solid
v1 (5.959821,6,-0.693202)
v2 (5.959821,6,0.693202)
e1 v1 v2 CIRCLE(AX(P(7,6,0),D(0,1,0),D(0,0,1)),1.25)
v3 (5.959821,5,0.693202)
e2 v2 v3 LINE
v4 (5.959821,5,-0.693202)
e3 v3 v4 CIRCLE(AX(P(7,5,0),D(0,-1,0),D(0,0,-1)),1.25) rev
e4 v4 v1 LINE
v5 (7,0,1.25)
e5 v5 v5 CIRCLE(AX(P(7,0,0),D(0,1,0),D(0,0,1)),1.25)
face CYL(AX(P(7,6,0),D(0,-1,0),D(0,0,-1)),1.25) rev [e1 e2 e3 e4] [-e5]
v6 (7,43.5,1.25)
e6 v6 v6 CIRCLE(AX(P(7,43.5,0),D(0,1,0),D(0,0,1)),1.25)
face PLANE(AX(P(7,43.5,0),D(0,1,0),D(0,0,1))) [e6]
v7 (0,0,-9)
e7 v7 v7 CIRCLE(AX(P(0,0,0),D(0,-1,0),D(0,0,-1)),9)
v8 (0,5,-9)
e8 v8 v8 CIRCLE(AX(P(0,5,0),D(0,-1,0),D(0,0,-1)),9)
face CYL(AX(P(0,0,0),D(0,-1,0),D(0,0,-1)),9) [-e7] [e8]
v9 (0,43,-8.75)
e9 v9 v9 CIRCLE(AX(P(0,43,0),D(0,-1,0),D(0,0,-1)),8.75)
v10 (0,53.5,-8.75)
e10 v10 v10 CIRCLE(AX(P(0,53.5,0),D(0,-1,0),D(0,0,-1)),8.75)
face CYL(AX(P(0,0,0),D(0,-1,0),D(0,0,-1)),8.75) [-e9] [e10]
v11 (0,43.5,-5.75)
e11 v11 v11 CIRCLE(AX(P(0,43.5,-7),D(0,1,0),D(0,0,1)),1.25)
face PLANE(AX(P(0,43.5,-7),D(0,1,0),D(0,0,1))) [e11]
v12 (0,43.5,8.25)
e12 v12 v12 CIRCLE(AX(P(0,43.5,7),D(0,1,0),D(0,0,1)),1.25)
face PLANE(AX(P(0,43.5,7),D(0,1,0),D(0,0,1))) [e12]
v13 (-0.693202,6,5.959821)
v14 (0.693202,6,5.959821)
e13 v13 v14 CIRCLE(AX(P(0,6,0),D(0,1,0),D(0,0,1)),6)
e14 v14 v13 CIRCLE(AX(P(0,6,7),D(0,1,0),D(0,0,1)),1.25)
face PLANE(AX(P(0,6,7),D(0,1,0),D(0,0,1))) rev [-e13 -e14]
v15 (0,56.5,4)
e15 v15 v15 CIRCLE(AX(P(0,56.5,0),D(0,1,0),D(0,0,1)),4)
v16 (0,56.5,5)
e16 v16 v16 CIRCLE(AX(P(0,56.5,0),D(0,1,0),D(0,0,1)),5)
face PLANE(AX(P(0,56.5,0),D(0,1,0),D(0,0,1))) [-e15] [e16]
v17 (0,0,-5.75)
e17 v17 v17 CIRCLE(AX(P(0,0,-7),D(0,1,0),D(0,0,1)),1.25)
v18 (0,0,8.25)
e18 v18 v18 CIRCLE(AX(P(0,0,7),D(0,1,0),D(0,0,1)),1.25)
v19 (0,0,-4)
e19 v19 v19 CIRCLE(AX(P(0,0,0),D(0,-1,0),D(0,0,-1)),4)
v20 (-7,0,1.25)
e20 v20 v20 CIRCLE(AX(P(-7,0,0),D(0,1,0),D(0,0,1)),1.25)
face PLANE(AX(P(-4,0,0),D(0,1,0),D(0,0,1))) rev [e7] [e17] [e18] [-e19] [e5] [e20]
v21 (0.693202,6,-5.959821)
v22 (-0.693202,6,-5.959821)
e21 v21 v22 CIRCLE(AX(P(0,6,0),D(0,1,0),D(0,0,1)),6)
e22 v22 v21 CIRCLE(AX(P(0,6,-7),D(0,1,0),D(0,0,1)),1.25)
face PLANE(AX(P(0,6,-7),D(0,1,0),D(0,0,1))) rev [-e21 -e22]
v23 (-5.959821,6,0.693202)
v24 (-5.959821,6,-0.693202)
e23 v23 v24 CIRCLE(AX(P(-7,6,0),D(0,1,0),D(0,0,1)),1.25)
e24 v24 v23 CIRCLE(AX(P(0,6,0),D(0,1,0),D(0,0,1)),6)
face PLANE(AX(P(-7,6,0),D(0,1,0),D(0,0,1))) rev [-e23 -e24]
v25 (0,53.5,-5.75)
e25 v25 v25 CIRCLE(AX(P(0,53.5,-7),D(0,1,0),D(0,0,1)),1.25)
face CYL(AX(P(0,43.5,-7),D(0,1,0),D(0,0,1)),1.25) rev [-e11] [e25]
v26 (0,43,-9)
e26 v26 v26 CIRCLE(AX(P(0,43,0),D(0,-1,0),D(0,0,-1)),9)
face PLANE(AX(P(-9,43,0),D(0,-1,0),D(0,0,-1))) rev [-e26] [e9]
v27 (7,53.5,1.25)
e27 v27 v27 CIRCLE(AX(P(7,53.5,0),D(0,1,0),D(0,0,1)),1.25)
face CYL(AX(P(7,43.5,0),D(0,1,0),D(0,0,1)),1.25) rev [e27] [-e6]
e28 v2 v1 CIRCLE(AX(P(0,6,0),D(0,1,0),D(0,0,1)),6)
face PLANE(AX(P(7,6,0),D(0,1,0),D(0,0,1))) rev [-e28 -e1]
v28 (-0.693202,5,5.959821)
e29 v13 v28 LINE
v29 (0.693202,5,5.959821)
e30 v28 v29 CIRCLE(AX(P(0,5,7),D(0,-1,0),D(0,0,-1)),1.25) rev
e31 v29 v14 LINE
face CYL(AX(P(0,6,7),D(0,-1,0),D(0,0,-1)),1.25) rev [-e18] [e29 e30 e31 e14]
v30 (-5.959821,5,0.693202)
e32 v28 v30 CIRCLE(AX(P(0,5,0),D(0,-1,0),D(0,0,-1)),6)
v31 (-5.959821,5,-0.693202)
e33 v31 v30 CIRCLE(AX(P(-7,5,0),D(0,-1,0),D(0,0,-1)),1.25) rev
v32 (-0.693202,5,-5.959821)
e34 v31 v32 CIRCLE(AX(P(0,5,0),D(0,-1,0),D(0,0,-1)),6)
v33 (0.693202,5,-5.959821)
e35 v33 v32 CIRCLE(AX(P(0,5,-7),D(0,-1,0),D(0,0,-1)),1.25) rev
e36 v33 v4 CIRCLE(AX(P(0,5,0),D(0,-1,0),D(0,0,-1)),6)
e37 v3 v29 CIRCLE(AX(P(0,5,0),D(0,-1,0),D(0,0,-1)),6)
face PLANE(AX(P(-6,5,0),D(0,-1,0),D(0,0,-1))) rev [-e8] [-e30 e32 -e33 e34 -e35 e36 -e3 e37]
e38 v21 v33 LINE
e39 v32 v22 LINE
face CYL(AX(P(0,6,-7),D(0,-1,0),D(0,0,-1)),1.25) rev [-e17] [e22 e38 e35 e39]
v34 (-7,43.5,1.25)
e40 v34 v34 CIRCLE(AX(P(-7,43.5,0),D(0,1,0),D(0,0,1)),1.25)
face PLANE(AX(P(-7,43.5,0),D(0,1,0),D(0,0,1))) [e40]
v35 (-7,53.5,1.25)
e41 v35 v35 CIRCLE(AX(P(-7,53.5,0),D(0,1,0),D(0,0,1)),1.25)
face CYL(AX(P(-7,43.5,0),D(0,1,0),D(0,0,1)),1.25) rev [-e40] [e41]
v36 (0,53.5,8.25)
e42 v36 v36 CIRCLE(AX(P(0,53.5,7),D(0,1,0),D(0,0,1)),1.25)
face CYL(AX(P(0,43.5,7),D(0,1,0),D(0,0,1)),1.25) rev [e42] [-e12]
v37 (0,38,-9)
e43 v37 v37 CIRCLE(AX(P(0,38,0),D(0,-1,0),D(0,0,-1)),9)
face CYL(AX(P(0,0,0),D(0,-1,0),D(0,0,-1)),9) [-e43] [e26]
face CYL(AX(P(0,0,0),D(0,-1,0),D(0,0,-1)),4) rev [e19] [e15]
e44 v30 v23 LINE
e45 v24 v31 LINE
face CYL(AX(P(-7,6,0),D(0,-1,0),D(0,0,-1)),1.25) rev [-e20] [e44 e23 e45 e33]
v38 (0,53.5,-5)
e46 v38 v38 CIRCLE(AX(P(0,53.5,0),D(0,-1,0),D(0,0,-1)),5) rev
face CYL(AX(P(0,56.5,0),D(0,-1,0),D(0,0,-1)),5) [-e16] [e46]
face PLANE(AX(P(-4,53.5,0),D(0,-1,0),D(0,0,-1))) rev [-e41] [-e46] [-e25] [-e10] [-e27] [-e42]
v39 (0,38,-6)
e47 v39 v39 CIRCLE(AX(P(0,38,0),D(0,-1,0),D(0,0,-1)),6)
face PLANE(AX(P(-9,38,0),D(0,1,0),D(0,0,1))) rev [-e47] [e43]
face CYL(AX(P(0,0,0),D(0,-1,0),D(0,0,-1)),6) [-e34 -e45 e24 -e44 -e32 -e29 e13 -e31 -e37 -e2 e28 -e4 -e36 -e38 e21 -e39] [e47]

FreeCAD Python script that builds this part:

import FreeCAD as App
import Part
import Sketcher

doc = App.newDocument("Part")
body = doc.addObject("PartDesign::Body", "Body")

# Sketch on XY plane
sketch1 = body.newObject("Sketcher::SketchObject", "Sketch")
sketch1.AttachmentSupport = (doc.getObject("XY_Plane"), [""])
sketch1.MapMode = "FlatFace"
sketch1.addGeometry(Part.LineSegment(App.Vector(-9, 38, 0), App.Vector(-6, 38, 0)), False)
sketch1.addGeometry(Part.LineSegment(App.Vector(-6, 38, 0), App.Vector(-6, 5, 0)), False)
sketch1.addGeometry(Part.LineSegment(App.Vector(-6, 5, 0), App.Vector(-9, 5, 0)), False)
sketch1.addGeometry(Part.LineSegment(App.Vector(-9, 5, 0), App.Vector(-9, 0, 0)), False)
sketch1.addGeometry(Part.LineSegment(App.Vector(-9, 0, 0), App.Vector(-4, 0, 0)), False)
sketch1.addGeometry(Part.LineSegment(App.Vector(-4, 0, 0), App.Vector(-4, 53.5, 0)), False)
sketch1.addGeometry(Part.LineSegment(App.Vector(-4, 53.5, 0), App.Vector(-8.75, 53.5, 0)), False)
sketch1.addGeometry(Part.LineSegment(App.Vector(-8.75, 53.5, 0), App.Vector(-8.75, 43, 0)), False)
sketch1.addGeometry(Part.LineSegment(App.Vector(-8.75, 43, 0), App.Vector(-9, 43, 0)), False)
sketch1.addGeometry(Part.LineSegment(App.Vector(-9, 43, 0), App.Vector(-9, 38, 0)), False)
sketch1.addConstraint(Sketcher.Constraint("Coincident", 0, 2, 1, 1))
sketch1.addConstraint(Sketcher.Constraint("Coincident", 1, 2, 2, 1))
sketch1.addConstraint(Sketcher.Constraint("Coincident", 2, 2, 3, 1))
sketch1.addConstraint(Sketcher.Constraint("Coincident", 3, 2, 4, 1))
sketch1.addConstraint(Sketcher.Constraint("Coincident", 4, 2, 5, 1))
sketch1.addConstraint(Sketcher.Constraint("Coincident", 5, 2, 6, 1))
sketch1.addConstraint(Sketcher.Constraint("Coincident", 6, 2, 7, 1))
sketch1.addConstraint(Sketcher.Constraint("Coincident", 7, 2, 8, 1))
sketch1.addConstraint(Sketcher.Constraint("Coincident", 8, 2, 9, 1))
sketch1.addConstraint(Sketcher.Constraint("Coincident", 9, 2, 0, 1))
sketch1.addConstraint(Sketcher.Constraint("Horizontal", 0))
sketch1.addConstraint(Sketcher.Constraint("Vertical", 1))
sketch1.addConstraint(Sketcher.Constraint("Horizontal", 2))
sketch1.addConstraint(Sketcher.Constraint("Vertical", 3))
sketch1.addConstraint(Sketcher.Constraint("Horizontal", 4))
sketch1.addConstraint(Sketcher.Constraint("Vertical", 5))
sketch1.addConstraint(Sketcher.Constraint("Horizontal", 6))
sketch1.addConstraint(Sketcher.Constraint("Vertical", 7))
sketch1.addConstraint(Sketcher.Constraint("Horizontal", 8))
sketch1.addConstraint(Sketcher.Constraint("Vertical", 9))
sketch1.addConstraint(Sketcher.Constraint("PointOnObject", 3, 2, -1))
sketch1.addConstraint(Sketcher.Constraint("Vertical", 3, 2, 8, 2))
sketch1.addConstraint(Sketcher.Constraint("Equal", 4, 3))
sketch1.addConstraint(Sketcher.Constraint("Equal", 3, 9))
sketch1.addConstraint(Sketcher.Constraint("DistanceX", 0, 1, 0, 2, 3.0))
sketch1.addConstraint(Sketcher.Constraint("DistanceX", 4, 1, 4, 2, 5.0))
sketch1.addConstraint(Sketcher.Constraint("DistanceY", 1, 2, 1, 1, 33.0))
sketch1.addConstraint(Sketcher.Constraint("DistanceY", 5, 1, 5, 2, 53.5))
sketch1.addConstraint(Sketcher.Constraint("DistanceX", 0, 2, -1, 1, 6.0))
sketch1.addConstraint(Sketcher.Constraint("DistanceX", 6, 2, 6, 1, 4.75))
revolution = body.newObject("PartDesign::Revolution", "Revolution")
revolution.Profile = sketch1
revolution.ReferenceAxis = (sketch1, ["V_Axis"])
revolution.Angle = 360

# Sketch on XZ plane
sketch2 = body.newObject("Sketcher::SketchObject", "Sketch001")
sketch2.AttachmentSupport = (doc.getObject("XZ_Plane"), [""])
sketch2.MapMode = "FlatFace"
sketch2.AttachmentOffset = App.Placement(App.Vector(0, 0, -53.5), App.Rotation())
sketch2.addGeometry(Part.Circle(App.Vector(0, -7, 0), App.Vector(0, 0, 1), 1.2), False)
sketch2.addGeometry(Part.Circle(App.Vector(7, 0, 0), App.Vector(0, 0, 1), 1.2), False)
sketch2.addGeometry(Part.Circle(App.Vector(0, 7, 0), App.Vector(0, 0, 1), 1.2), False)
sketch2.addGeometry(Part.Circle(App.Vector(-7, 0, 0), App.Vector(0, 0, 1), 1.2), False)
sketch2.addConstraint(Sketcher.Constraint("Equal", 0, 1))
sketch2.addConstraint(Sketcher.Constraint("Equal", 1, 2))
sketch2.addConstraint(Sketcher.Constraint("Equal", 2, 3))
sketch2.addConstraint(Sketcher.Constraint("Symmetric", 0, 3, 2, 3, -1, 1))
sketch2.addConstraint(Sketcher.Constraint("Symmetric", 1, 3, 3, 3, -1, 1))
sketch2.addConstraint(Sketcher.Constraint("PointOnObject", 0, 3, -2))
sketch2.addConstraint(Sketcher.Constraint("PointOnObject", 1, 3, -1))
sketch2.addConstraint(Sketcher.Constraint("Diameter", 0, 2.5))
sketch2.addConstraint(Sketcher.Constraint("DistanceY", 0, 3, -1, 1, 7.0))
sketch2.addConstraint(Sketcher.Constraint("DistanceX", -1, 1, 1, 3, 7.0))
pocket1 = body.newObject("PartDesign::Pocket", "Pocket")
pocket1.Profile = sketch2
pocket1.Length = 10
pocket1.Reversed = True

# Sketch on XZ plane
sketch3 = body.newObject("Sketcher::SketchObject", "Sketch002")
sketch3.AttachmentSupport = (doc.getObject("XZ_Plane"), [""])
sketch3.MapMode = "FlatFace"
sketch3.AttachmentOffset = App.Placement(App.Vector(0, 0, -6), App.Rotation())
sketch3.addGeometry(Part.Circle(App.Vector(0, -7, 0), App.Vector(0, 0, 1), 1.2), False)
sketch3.addGeometry(Part.Circle(App.Vector(7, 0, 0), App.Vector(0, 0, 1), 1.2), False)
sketch3.addGeometry(Part.Circle(App.Vector(0, 7, 0), App.Vector(0, 0, 1), 1.2), False)
sketch3.addGeometry(Part.Circle(App.Vector(-7, 0, 0), App.Vector(0, 0, 1), 1.2), False)
sketch3.addConstraint(Sketcher.Constraint("Equal", 0, 1))
sketch3.addConstraint(Sketcher.Constraint("Equal", 1, 2))
sketch3.addConstraint(Sketcher.Constraint("Equal", 2, 3))
sketch3.addConstraint(Sketcher.Constraint("Symmetric", 0, 3, 2, 3, -1, 1))
sketch3.addConstraint(Sketcher.Constraint("Symmetric", 1, 3, 3, 3, -1, 1))
sketch3.addConstraint(Sketcher.Constraint("PointOnObject", 0, 3, -2))
sketch3.addConstraint(Sketcher.Constraint("PointOnObject", 1, 3, -1))
sketch3.addConstraint(Sketcher.Constraint("Diameter", 0, 2.5))
sketch3.addConstraint(Sketcher.Constraint("DistanceY", 0, 3, -1, 1, 7.0))
sketch3.addConstraint(Sketcher.Constraint("DistanceX", -1, 1, 1, 3, 7.0))
pocket2 = body.newObject("PartDesign::Pocket", "Pocket001")
pocket2.Profile = sketch3
pocket2.Length = 6
pocket2.Reversed = True

# Sketch on XZ plane
sketch4 = body.newObject("Sketcher::SketchObject", "Sketch003")
sketch4.AttachmentSupport = (doc.getObject("XZ_Plane"), [""])
sketch4.MapMode = "FlatFace"
sketch4.AttachmentOffset = App.Placement(App.Vector(0, 0, -56.5), App.Rotation())
sketch4.addGeometry(Part.Circle(App.Vector(0, 0, 0), App.Vector(0, 0, 1), 5), False)
sketch4.addGeometry(Part.Circle(App.Vector(0, 0, 0), App.Vector(0, 0, 1), 4), False)
sketch4.addConstraint(Sketcher.Constraint("Coincident", 0, 3, -1, 1))
sketch4.addConstraint(Sketcher.Constraint("Coincident", 1, 3, -1, 1))
sketch4.addConstraint(Sketcher.Constraint("Diameter", 0, 10.0))
sketch4.addConstraint(Sketcher.Constraint("Diameter", 1, 8.0))
pad1 = body.newObject("PartDesign::Pad", "Pad")
pad1.Profile = sketch4
pad1.Length = 3

doc.recompute()
